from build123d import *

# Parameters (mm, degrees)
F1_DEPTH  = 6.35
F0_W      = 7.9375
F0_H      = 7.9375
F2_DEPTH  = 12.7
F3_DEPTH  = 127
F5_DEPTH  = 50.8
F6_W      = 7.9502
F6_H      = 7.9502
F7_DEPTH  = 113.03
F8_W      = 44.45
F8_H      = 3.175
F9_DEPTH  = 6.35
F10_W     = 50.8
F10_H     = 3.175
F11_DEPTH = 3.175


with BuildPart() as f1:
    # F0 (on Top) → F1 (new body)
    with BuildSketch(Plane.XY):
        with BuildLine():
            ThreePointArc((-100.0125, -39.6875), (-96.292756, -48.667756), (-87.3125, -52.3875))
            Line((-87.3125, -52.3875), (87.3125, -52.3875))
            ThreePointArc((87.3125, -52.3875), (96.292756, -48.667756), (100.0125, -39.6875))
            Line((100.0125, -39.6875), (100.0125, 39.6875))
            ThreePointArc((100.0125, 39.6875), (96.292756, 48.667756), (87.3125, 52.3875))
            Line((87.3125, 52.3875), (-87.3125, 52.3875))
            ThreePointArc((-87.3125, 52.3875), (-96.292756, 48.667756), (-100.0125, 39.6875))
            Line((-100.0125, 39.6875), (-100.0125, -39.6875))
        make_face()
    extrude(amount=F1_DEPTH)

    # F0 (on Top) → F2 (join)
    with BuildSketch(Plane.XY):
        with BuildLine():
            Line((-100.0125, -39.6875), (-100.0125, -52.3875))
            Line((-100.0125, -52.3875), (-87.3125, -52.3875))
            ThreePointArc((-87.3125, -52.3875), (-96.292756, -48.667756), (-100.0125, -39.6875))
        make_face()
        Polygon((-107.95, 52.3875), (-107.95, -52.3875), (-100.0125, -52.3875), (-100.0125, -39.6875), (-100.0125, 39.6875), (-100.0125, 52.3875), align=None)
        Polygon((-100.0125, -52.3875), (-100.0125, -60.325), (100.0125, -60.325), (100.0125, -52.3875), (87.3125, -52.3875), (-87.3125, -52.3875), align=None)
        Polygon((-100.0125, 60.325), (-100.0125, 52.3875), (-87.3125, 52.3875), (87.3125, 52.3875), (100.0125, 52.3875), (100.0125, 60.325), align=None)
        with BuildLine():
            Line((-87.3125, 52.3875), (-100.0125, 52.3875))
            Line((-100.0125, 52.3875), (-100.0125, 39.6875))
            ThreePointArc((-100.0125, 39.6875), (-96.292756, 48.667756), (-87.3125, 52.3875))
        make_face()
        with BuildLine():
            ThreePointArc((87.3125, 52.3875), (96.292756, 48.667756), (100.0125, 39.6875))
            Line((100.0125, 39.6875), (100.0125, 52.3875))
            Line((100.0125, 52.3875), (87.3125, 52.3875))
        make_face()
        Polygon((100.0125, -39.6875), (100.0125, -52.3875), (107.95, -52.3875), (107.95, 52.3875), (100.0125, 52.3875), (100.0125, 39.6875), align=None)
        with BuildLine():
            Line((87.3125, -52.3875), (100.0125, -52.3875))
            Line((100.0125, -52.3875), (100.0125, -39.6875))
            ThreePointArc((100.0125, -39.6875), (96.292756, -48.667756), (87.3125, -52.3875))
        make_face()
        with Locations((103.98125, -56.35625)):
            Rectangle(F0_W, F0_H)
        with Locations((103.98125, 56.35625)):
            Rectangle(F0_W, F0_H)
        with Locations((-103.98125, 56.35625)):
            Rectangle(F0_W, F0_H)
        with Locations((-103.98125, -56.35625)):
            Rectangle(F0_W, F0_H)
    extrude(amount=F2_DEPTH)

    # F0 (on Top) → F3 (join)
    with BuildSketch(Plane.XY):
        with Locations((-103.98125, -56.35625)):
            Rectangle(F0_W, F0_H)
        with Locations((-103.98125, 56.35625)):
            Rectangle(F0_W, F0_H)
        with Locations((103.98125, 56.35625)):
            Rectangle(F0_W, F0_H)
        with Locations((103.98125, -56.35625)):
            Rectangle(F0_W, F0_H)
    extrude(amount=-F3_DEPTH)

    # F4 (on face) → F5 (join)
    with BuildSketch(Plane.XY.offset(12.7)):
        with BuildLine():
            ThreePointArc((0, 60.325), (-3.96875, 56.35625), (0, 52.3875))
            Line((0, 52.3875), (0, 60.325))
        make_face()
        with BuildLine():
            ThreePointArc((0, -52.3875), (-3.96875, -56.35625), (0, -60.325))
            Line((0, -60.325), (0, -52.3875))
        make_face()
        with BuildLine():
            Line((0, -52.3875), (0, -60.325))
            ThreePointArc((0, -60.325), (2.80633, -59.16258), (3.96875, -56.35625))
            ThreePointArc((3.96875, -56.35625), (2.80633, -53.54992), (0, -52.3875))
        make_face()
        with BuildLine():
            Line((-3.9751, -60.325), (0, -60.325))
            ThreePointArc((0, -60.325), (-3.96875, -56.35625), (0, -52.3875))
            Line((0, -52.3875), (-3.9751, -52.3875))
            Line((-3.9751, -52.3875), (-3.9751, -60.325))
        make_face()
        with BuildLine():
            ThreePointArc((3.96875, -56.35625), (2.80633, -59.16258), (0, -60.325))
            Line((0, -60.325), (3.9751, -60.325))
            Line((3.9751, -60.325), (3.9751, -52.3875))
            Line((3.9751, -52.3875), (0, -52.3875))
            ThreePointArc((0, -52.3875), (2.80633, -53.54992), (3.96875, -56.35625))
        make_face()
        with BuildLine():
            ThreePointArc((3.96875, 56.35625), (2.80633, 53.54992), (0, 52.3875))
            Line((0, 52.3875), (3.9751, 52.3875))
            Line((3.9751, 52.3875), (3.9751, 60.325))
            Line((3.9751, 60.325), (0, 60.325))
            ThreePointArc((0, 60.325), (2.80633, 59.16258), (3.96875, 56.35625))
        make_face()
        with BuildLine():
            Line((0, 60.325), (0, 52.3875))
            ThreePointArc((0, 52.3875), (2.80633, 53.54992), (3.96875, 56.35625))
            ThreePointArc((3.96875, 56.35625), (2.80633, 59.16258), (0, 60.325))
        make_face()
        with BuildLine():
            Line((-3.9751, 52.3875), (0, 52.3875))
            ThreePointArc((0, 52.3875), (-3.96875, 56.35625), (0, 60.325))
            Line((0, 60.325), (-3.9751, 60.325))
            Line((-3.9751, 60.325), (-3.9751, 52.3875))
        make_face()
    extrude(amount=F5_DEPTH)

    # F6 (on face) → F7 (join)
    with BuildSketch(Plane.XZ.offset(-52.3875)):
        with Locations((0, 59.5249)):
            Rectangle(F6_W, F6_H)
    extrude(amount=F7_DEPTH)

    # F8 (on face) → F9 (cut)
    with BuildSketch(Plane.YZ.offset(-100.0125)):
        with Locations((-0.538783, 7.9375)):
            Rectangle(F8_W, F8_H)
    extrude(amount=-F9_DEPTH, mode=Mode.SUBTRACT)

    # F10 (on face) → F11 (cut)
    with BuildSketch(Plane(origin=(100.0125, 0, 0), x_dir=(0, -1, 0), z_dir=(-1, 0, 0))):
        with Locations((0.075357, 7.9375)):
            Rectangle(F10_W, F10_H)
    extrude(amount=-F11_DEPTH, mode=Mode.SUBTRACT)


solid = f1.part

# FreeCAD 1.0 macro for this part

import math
import FreeCAD as App
import Part
import Sketcher
Q = App.Units.Quantity

doc = App.newDocument("Part")
body = doc.addObject("PartDesign::Body", "Body")

# Sketch on XY plane
sketch1 = doc.addObject("Sketcher::SketchObject", "Sketch")
body.addObject(sketch1)
sketch1.AttachmentSupport = (doc.XY_Plane, [""])
sketch1.MapMode = "FlatFace"
sketch1.addGeometry([
    Part.ArcOfCircle(Part.Circle(App.Vector(-87.3125, -39.6875, 0), App.Vector(0, 0, 1), 12.7), math.radians(-179.999998), math.radians(-90.000002)),  # 0
    Part.LineSegment(App.Vector(-87.3125, -52.3875, 0), App.Vector(87.3125, -52.3875, 0)),  # 1
    Part.ArcOfCircle(Part.Circle(App.Vector(87.3125, -39.6875, 0), App.Vector(0, 0, 1), 12.7), math.radians(-89.999998), math.radians(-0.000002)),  # 2
    Part.LineSegment(App.Vector(100.0125, -39.6875, 0), App.Vector(100.0125, 39.6875, 0)),  # 3
    Part.ArcOfCircle(Part.Circle(App.Vector(87.3125, 39.6875, 0), App.Vector(0, 0, 1), 12.7), math.radians(0.000002), math.radians(89.999998)),  # 4
    Part.LineSegment(App.Vector(87.3125, 52.3875, 0), App.Vector(-87.3125, 52.3875, 0)),  # 5
    Part.ArcOfCircle(Part.Circle(App.Vector(-87.3125, 39.6875, 0), App.Vector(0, 0, 1), 12.7), math.radians(90.000002), math.radians(179.999998)),  # 6
    Part.LineSegment(App.Vector(-100.0125, 39.6875, 0), App.Vector(-100.0125, -39.6875, 0)),  # 7
], False)
sketch1.addConstraint([
    Sketcher.Constraint("Tangent", 0, 2, 1, 1),
    Sketcher.Constraint("Tangent", 1, 2, 2, 1),
    Sketcher.Constraint("Tangent", 2, 2, 3, 1),
    Sketcher.Constraint("Tangent", 3, 2, 4, 1),
    Sketcher.Constraint("Tangent", 4, 2, 5, 1),
    Sketcher.Constraint("Tangent", 5, 2, 6, 1),
    Sketcher.Constraint("Tangent", 6, 2, 7, 1),
    Sketcher.Constraint("Tangent", 7, 2, 0, 1),
    Sketcher.Constraint("Horizontal", 1),
    Sketcher.Constraint("Vertical", 3),
    Sketcher.Constraint("Horizontal", 5),
    Sketcher.Constraint("Vertical", 7),
    Sketcher.Constraint("Equal", 0, 2),
    Sketcher.Constraint("Equal", 2, 4),
    Sketcher.Constraint("Equal", 4, 6),
    Sketcher.Constraint("Symmetric", 0, 3, 4, 3, -1, 1),
    Sketcher.Constraint("Radius", 0, Q("0.5 in")),
    Sketcher.Constraint("DistanceX", 1, 1, 1, 2, Q("6.875 in")),
    Sketcher.Constraint("DistanceY", 3, 1, 3, 2, Q("3.125 in")),
])
pad1 = doc.addObject("PartDesign::Pad", "Pad")
body.addObject(pad1)
pad1.Profile = sketch1
pad1.Length = Q("0.25 in")

# Sketch on XY plane
sketch2 = doc.addObject("Sketcher::SketchObject", "Sketch001")
body.addObject(sketch2)
sketch2.AttachmentSupport = (doc.XY_Plane, [""])
sketch2.MapMode = "FlatFace"
sketch2.addGeometry([
    Part.LineSegment(App.Vector(107.95, -60.325, 0), App.Vector(107.95, 60.325, 0)),  # 0
    Part.LineSegment(App.Vector(107.95, 60.325, 0), App.Vector(-107.95, 60.325, 0)),  # 1
    Part.LineSegment(App.Vector(-107.95, 60.325, 0), App.Vector(-107.95, -60.325, 0)),  # 2
    Part.LineSegment(App.Vector(-107.95, -60.325, 0), App.Vector(107.95, -60.325, 0)),  # 3
    Part.LineSegment(App.Vector(100.0125, 39.6875, 0), App.Vector(100.0125, -39.6875, 0)),  # 4
    Part.ArcOfCircle(Part.Circle(App.Vector(87.3125, -39.6875, 0), App.Vector(0, 0, 1), 12.7), math.radians(-89.999998), math.radians(-0.000002)),  # 5
    Part.LineSegment(App.Vector(87.3125, -52.3875, 0), App.Vector(-87.3125, -52.3875, 0)),  # 6
    Part.ArcOfCircle(Part.Circle(App.Vector(-87.3125, -39.6875, 0), App.Vector(0, 0, 1), 12.7), math.radians(-179.999998), math.radians(-90.000002)),  # 7
    Part.LineSegment(App.Vector(-100.0125, -39.6875, 0), App.Vector(-100.0125, 39.6875, 0)),  # 8
    Part.ArcOfCircle(Part.Circle(App.Vector(-87.3125, 39.6875, 0), App.Vector(0, 0, 1), 12.7), math.radians(90.000002), math.radians(179.999998)),  # 9
    Part.LineSegment(App.Vector(-87.3125, 52.3875, 0), App.Vector(87.3125, 52.3875, 0)),  # 10
    Part.ArcOfCircle(Part.Circle(App.Vector(87.3125, 39.6875, 0), App.Vector(0, 0, 1), 12.7), math.radians(0.000002), math.radians(89.999998)),  # 11
], False)
sketch2.addConstraint([
    Sketcher.Constraint("Coincident", 0, 2, 1, 1),
    Sketcher.Constraint("Coincident", 1, 2, 2, 1),
    Sketcher.Constraint("Coincident", 2, 2, 3, 1),
    Sketcher.Constraint("Coincident", 3, 2, 0, 1),
    Sketcher.Constraint("Tangent", 4, 2, 5, 2),
    Sketcher.Constraint("Tangent", 5, 1, 6, 1),
    Sketcher.Constraint("Tangent", 6, 2, 7, 2),
    Sketcher.Constraint("Tangent", 7, 1, 8, 1),
    Sketcher.Constraint("Tangent", 8, 2, 9, 2),
    Sketcher.Constraint("Tangent", 9, 1, 10, 1),
    Sketcher.Constraint("Tangent", 10, 2, 11, 2),
    Sketcher.Constraint("Tangent", 11, 1, 4, 1),
    Sketcher.Constraint("Vertical", 0),
    Sketcher.Constraint("Horizontal", 1),
    Sketcher.Constraint("Vertical", 2),
    Sketcher.Constraint("Horizontal", 3),
    Sketcher.Constraint("Vertical", 4),
    Sketcher.Constraint("Horizontal", 6),
    Sketcher.Constraint("Vertical", 8),
    Sketcher.Constraint("Horizontal", 10),
    Sketcher.Constraint("Equal", 5, 7),
    Sketcher.Constraint("Equal", 7, 9),
    Sketcher.Constraint("Equal", 9, 11),
    Sketcher.Constraint("Symmetric", 5, 3, 9, 3, -1, 1),
    Sketcher.Constraint("Symmetric", 0, 2, 2, 2, -1, 1),
    Sketcher.Constraint("Radius", 5, Q("0.5 in")),
    Sketcher.Constraint("DistanceX", 1, 2, 1, 1, Q("8.5 in")),
    Sketcher.Constraint("DistanceY", 0, 1, 0, 2, Q("4.75 in")),
    Sketcher.Constraint("DistanceX", 6, 2, 6, 1, Q("6.875 in")),
    Sketcher.Constraint("DistanceY", 4, 2, 4, 1, Q("3.125 in")),
])
pad2 = doc.addObject("PartDesign::Pad", "Pad001")
body.addObject(pad2)
pad2.Profile = sketch2
pad2.Length = Q("0.5 in")

# Sketch on XY plane
sketch3 = doc.addObject("Sketcher::SketchObject", "Sketch002")
body.addObject(sketch3)
sketch3.AttachmentSupport = (doc.XY_Plane, [""])
sketch3.MapMode = "FlatFace"
sketch3.addGeometry([
    Part.LineSegment(App.Vector(-107.95, -52.3875, 0), App.Vector(-107.95, -60.325, 0)),  # 0
    Part.LineSegment(App.Vector(-107.95, -60.325, 0), App.Vector(-100.0125, -60.325, 0)),  # 1
    Part.LineSegment(App.Vector(-100.0125, -60.325, 0), App.Vector(-100.0125, -52.3875, 0)),  # 2
    Part.LineSegment(App.Vector(-100.0125, -52.3875, 0), App.Vector(-107.95, -52.3875, 0)),  # 3
    Part.LineSegment(App.Vector(-107.95, 60.325, 0), App.Vector(-107.95, 52.3875, 0)),  # 4
    Part.LineSegment(App.Vector(-107.95, 52.3875, 0), App.Vector(-100.0125, 52.3875, 0)),  # 5
    Part.LineSegment(App.Vector(-100.0125, 52.3875, 0), App.Vector(-100.0125, 60.325, 0)),  # 6
    Part.LineSegment(App.Vector(-100.0125, 60.325, 0), App.Vector(-107.95, 60.325, 0)),  # 7
    Part.LineSegment(App.Vector(100.0125, 60.325, 0), App.Vector(100.0125, 52.3875, 0)),  # 8
    Part.LineSegment(App.Vector(100.0125, 52.3875, 0), App.Vector(107.95, 52.3875, 0)),  # 9
    Part.LineSegment(App.Vector(107.95, 52.3875, 0), App.Vector(107.95, 60.325, 0)),  # 10
    Part.LineSegment(App.Vector(107.95, 60.325, 0), App.Vector(100.0125, 60.325, 0)),  # 11
    Part.LineSegment(App.Vector(100.0125, -52.3875, 0), App.Vector(100.0125, -60.325, 0)),  # 12
    Part.LineSegment(App.Vector(100.0125, -60.325, 0), App.Vector(107.95, -60.325, 0)),  # 13
    Part.LineSegment(App.Vector(107.95, -60.325, 0), App.Vector(107.95, -52.3875, 0)),  # 14
    Part.LineSegment(App.Vector(107.95, -52.3875, 0), App.Vector(100.0125, -52.3875, 0)),  # 15
], False)
sketch3.addConstraint([
    Sketcher.Constraint("Coincident", 0, 2, 1, 1),
    Sketcher.Constraint("Coincident", 1, 2, 2, 1),
    Sketcher.Constraint("Coincident", 2, 2, 3, 1),
    Sketcher.Constraint("Coincident", 3, 2, 0, 1),
    Sketcher.Constraint("Coincident", 4, 2, 5, 1),
    Sketcher.Constraint("Coincident", 5, 2, 6, 1),
    Sketcher.Constraint("Coincident", 6, 2, 7, 1),
    Sketcher.Constraint("Coincident", 7, 2, 4, 1),
    Sketcher.Constraint("Coincident", 8, 2, 9, 1),
    Sketcher.Constraint("Coincident", 9, 2, 10, 1),
    Sketcher.Constraint("Coincident", 10, 2, 11, 1),
    Sketcher.Constraint("Coincident", 11, 2, 8, 1),
    Sketcher.Constraint("Coincident", 12, 2, 13, 1),
    Sketcher.Constraint("Coincident", 13, 2, 14, 1),
    Sketcher.Constraint("Coincident", 14, 2, 15, 1),
    Sketcher.Constraint("Coincident", 15, 2, 12, 1),
    Sketcher.Constraint("Vertical", 0),
    Sketcher.Constraint("Horizontal", 1),
    Sketcher.Constraint("Vertical", 2),
    Sketcher.Constraint("Horizontal", 3),
    Sketcher.Constraint("Vertical", 4),
    Sketcher.Constraint("Horizontal", 5),
    Sketcher.Constraint("Vertical", 6),
    Sketcher.Constraint("Horizontal", 7),
    Sketcher.Constraint("Vertical", 8),
    Sketcher.Constraint("Horizontal", 9),
    Sketcher.Constraint("Vertical", 10),
    Sketcher.Constraint("Horizontal", 11),
    Sketcher.Constraint("Vertical", 12),
    Sketcher.Constraint("Horizontal", 13),
    Sketcher.Constraint("Vertical", 14),
    Sketcher.Constraint("Horizontal", 15),
    Sketcher.Constraint("Symmetric", 2, 2, 8, 2, -1, 1),
    Sketcher.Constraint("Symmetric", 0, 2, 10, 2, -1, 1),
    Sketcher.Constraint("Symmetric", 6, 2, 12, 2, -1, 1),
    Sketcher.Constraint("Symmetric", 4, 2, 14, 2, -1, 1),
    Sketcher.Constraint("Symmetric", 5, 2, 8, 2, -2),
    Sketcher.Constraint("Symmetric", 7, 2, 10, 2, -2),
    Sketcher.Constraint("Equal", 15, 0),
    Sketcher.Constraint("DistanceX", 4, 2, 9, 2, Q("8.5 in")),
    Sketcher.Constraint("DistanceX", 1, 1, 1, 2, Q("0.3125 in")),
    Sketcher.Constraint("DistanceY", 1, 2, 6, 2, Q("4.75 in")),
])
pad3 = doc.addObject("PartDesign::Pad", "Pad002")
body.addObject(pad3)
pad3.Profile = sketch3
pad3.Length = Q("5 in")
pad3.Reversed = True

# Sketch on XY plane
sketch4 = doc.addObject("Sketcher::SketchObject", "Sketch003")
body.addObject(sketch4)
sketch4.AttachmentSupport = (doc.XY_Plane, [""])
sketch4.MapMode = "FlatFace"
sketch4.AttachmentOffset = App.Placement(App.Vector(0, 0, 0.5 * 25.4), App.Rotation())
sketch4.addGeometry([
    Part.LineSegment(App.Vector(3.9751, 52.3875, 0), App.Vector(3.9751, 60.325, 0)),  # 0
    Part.LineSegment(App.Vector(3.9751, 60.325, 0), App.Vector(-3.9751, 60.325, 0)),  # 1
    Part.LineSegment(App.Vector(-3.9751, 60.325, 0), App.Vector(-3.9751, 52.3875, 0)),  # 2
    Part.LineSegment(App.Vector(-3.9751, 52.3875, 0), App.Vector(3.9751, 52.3875, 0)),  # 3
    Part.LineSegment(App.Vector(-3.9751, -52.3875, 0), App.Vector(-3.9751, -60.325, 0)),  # 4
    Part.LineSegment(App.Vector(-3.9751, -60.325, 0), App.Vector(3.9751, -60.325, 0)),  # 5
    Part.LineSegment(App.Vector(3.9751, -60.325, 0), App.Vector(3.9751, -52.3875, 0)),  # 6
    Part.LineSegment(App.Vector(3.9751, -52.3875, 0), App.Vector(-3.9751, -52.3875, 0)),  # 7
], False)
sketch4.addConstraint([
    Sketcher.Constraint("Coincident", 0, 2, 1, 1),
    Sketcher.Constraint("Coincident", 1, 2, 2, 1),
    Sketcher.Constraint("Coincident", 2, 2, 3, 1),
    Sketcher.Constraint("Coincident", 3, 2, 0, 1),
    Sketcher.Constraint("Coincident", 4, 2, 5, 1),
    Sketcher.Constraint("Coincident", 5, 2, 6, 1),
    Sketcher.Constraint("Coincident", 6, 2, 7, 1),
    Sketcher.Constraint("Coincident", 7, 2, 4, 1),
    Sketcher.Constraint("Vertical", 0),
    Sketcher.Constraint("Horizontal", 1),
    Sketcher.Constraint("Vertical", 2),
    Sketcher.Constraint("Horizontal", 3),
    Sketcher.Constraint("Vertical", 4),
    Sketcher.Constraint("Horizontal", 5),
    Sketcher.Constraint("Vertical", 6),
    Sketcher.Constraint("Horizontal", 7),
    Sketcher.Constraint("Symmetric", 0, 2, 4, 2, -1, 1),
    Sketcher.Constraint("Symmetric", 2, 2, 6, 2, -1, 1),
    Sketcher.Constraint("Vertical", 2, 2, 4, 2),
    Sketcher.Constraint("DistanceX", 1, 2, 1, 1, Q("0.313 in")),
    Sketcher.Constraint("DistanceY", 0, 1, 0, 2, Q("0.3125 in")),
    Sketcher.Constraint("DistanceY", 4, 2, 1, 2, Q("4.75 in")),
])
pad4 = doc.addObject("PartDesign::Pad", "Pad003")
body.addObject(pad4)
pad4.Profile = sketch4
pad4.Length = Q("2 in")

# Sketch on XZ plane
sketch5 = doc.addObject("Sketcher::SketchObject", "Sketch004")
body.addObject(sketch5)
sketch5.AttachmentSupport = (doc.XZ_Plane, [""])
sketch5.MapMode = "FlatFace"
sketch5.AttachmentOffset = App.Placement(App.Vector(0, 0, -2.0625 * 25.4), App.Rotation())
sketch5.addGeometry([
    Part.LineSegment(App.Vector(-3.9751, 63.5, 0), App.Vector(-3.9751, 55.5498, 0)),
    Part.LineSegment(App.Vector(-3.9751, 55.5498, 0), App.Vector(3.9751, 55.5498, 0)),
    Part.LineSegment(App.Vector(3.9751, 55.5498, 0), App.Vector(3.9751, 63.5, 0)),
    Part.LineSegment(App.Vector(3.9751, 63.5, 0), App.Vector(-3.9751, 63.5, 0)),
], False)
sketch5.addConstraint([
    Sketcher.Constraint("Coincident", 0, 2, 1, 1),
    Sketcher.Constraint("Coincident", 1, 2, 2, 1),
    Sketcher.Constraint("Coincident", 2, 2, 3, 1),
    Sketcher.Constraint("Coincident", 3, 2, 0, 1),
    Sketcher.Constraint("Vertical", 0),
    Sketcher.Constraint("Horizontal", 1),
    Sketcher.Constraint("Vertical", 2),
    Sketcher.Constraint("Horizontal", 3),
    Sketcher.Constraint("Equal", 3, 0),
    Sketcher.Constraint("DistanceY", -1, 1, 2, 2, Q("2.5 in")),
    Sketcher.Constraint("DistanceX", 1, 1, 1, 2, Q("0.313 in")),
    Sketcher.Constraint("DistanceX", 0, 2, -1, 1, Q("0.1565 in")),
])
pad5 = doc.addObject("PartDesign::Pad", "Pad004")
body.addObject(pad5)
pad5.Profile = sketch5
pad5.Length = Q("4.45 in")

# Sketch on YZ plane
sketch6 = doc.addObject("Sketcher::SketchObject", "Sketch005")
body.addObject(sketch6)
sketch6.AttachmentSupport = (doc.YZ_Plane, [""])
sketch6.MapMode = "FlatFace"
sketch6.AttachmentOffset = App.Placement(App.Vector(0, 0, -3.9375 * 25.4), App.Rotation())
sketch6.addGeometry([
    Part.LineSegment(App.Vector(-22.763783, 9.525, 0), App.Vector(-22.763783, 6.35, 0)),
    Part.LineSegment(App.Vector(-22.763783, 6.35, 0), App.Vector(21.686217, 6.35, 0)),
    Part.LineSegment(App.Vector(21.686217, 6.35, 0), App.Vector(21.686217, 9.525, 0)),
    Part.LineSegment(App.Vector(21.686217, 9.525, 0), App.Vector(-22.763783, 9.525, 0)),
], False)
sketch6.addConstraint([
    Sketcher.Constraint("Coincident", 0, 2, 1, 1),
    Sketcher.Constraint("Coincident", 1, 2, 2, 1),
    Sketcher.Constraint("Coincident", 2, 2, 3, 1),
    Sketcher.Constraint("Coincident", 3, 2, 0, 1),
    Sketcher.Constraint("Vertical", 0),
    Sketcher.Constraint("Horizontal", 1),
    Sketcher.Constraint("Vertical", 2),
    Sketcher.Constraint("Horizontal", 3),
    Sketcher.Constraint("DistanceX", 1, 1, 1, 2, Q("1.75 in")),
    Sketcher.Constraint("DistanceY", 0, 2, 0, 1, Q("0.125 in")),
    Sketcher.Constraint("DistanceY", -1, 1, 0, 2, Q("0.25 in")),
    Sketcher.Constraint("DistanceX", 0, 2, -1, 1, Q("22.763783 mm")),
])
pocket1 = doc.addObject("PartDesign::Pocket", "Pocket")
body.addObject(pocket1)
pocket1.Profile = sketch6
pocket1.Length = Q("0.25 in")

# Sketch on YZ plane
sketch7 = doc.addObject("Sketcher::SketchObject", "Sketch006")
body.addObject(sketch7)
sketch7.AttachmentSupport = (doc.YZ_Plane, [""])
sketch7.MapMode = "FlatFace"
sketch7.AttachmentOffset = App.Placement(App.Vector(0, 0, 3.9375 * 25.4), App.Rotation())
sketch7.addGeometry([
    Part.LineSegment(App.Vector(25.324643, 9.525, 0), App.Vector(25.324643, 6.35, 0)),
    Part.LineSegment(App.Vector(25.324643, 6.35, 0), App.Vector(-25.475357, 6.35, 0)),
    Part.LineSegment(App.Vector(-25.475357, 6.35, 0), App.Vector(-25.475357, 9.525, 0)),
    Part.LineSegment(App.Vector(-25.475357, 9.525, 0), App.Vector(25.324643, 9.525, 0)),
], False)
sketch7.addConstraint([
    Sketcher.Constraint("Coincident", 0, 2, 1, 1),
    Sketcher.Constraint("Coincident", 1, 2, 2, 1),
    Sketcher.Constraint("Coincident", 2, 2, 3, 1),
    Sketcher.Constraint("Coincident", 3, 2, 0, 1),
    Sketcher.Constraint("Vertical", 0),
    Sketcher.Constraint("Horizontal", 1),
    Sketcher.Constraint("Vertical", 2),
    Sketcher.Constraint("Horizontal", 3),
    Sketcher.Constraint("DistanceX", 1, 2, 1, 1, Q("2 in")),
    Sketcher.Constraint("DistanceY", 0, 2, 0, 1, Q("0.125 in")),
    Sketcher.Constraint("DistanceY", -1, 1, 0, 2, Q("0.25 in")),
    Sketcher.Constraint("DistanceX", -1, 1, 0, 2, Q("25.324643 mm")),
])
pocket2 = doc.addObject("PartDesign::Pocket", "Pocket001")
body.addObject(pocket2)
pocket2.Profile = sketch7
pocket2.Length = Q("0.125 in")
pocket2.Reversed = True

doc.recompute()
